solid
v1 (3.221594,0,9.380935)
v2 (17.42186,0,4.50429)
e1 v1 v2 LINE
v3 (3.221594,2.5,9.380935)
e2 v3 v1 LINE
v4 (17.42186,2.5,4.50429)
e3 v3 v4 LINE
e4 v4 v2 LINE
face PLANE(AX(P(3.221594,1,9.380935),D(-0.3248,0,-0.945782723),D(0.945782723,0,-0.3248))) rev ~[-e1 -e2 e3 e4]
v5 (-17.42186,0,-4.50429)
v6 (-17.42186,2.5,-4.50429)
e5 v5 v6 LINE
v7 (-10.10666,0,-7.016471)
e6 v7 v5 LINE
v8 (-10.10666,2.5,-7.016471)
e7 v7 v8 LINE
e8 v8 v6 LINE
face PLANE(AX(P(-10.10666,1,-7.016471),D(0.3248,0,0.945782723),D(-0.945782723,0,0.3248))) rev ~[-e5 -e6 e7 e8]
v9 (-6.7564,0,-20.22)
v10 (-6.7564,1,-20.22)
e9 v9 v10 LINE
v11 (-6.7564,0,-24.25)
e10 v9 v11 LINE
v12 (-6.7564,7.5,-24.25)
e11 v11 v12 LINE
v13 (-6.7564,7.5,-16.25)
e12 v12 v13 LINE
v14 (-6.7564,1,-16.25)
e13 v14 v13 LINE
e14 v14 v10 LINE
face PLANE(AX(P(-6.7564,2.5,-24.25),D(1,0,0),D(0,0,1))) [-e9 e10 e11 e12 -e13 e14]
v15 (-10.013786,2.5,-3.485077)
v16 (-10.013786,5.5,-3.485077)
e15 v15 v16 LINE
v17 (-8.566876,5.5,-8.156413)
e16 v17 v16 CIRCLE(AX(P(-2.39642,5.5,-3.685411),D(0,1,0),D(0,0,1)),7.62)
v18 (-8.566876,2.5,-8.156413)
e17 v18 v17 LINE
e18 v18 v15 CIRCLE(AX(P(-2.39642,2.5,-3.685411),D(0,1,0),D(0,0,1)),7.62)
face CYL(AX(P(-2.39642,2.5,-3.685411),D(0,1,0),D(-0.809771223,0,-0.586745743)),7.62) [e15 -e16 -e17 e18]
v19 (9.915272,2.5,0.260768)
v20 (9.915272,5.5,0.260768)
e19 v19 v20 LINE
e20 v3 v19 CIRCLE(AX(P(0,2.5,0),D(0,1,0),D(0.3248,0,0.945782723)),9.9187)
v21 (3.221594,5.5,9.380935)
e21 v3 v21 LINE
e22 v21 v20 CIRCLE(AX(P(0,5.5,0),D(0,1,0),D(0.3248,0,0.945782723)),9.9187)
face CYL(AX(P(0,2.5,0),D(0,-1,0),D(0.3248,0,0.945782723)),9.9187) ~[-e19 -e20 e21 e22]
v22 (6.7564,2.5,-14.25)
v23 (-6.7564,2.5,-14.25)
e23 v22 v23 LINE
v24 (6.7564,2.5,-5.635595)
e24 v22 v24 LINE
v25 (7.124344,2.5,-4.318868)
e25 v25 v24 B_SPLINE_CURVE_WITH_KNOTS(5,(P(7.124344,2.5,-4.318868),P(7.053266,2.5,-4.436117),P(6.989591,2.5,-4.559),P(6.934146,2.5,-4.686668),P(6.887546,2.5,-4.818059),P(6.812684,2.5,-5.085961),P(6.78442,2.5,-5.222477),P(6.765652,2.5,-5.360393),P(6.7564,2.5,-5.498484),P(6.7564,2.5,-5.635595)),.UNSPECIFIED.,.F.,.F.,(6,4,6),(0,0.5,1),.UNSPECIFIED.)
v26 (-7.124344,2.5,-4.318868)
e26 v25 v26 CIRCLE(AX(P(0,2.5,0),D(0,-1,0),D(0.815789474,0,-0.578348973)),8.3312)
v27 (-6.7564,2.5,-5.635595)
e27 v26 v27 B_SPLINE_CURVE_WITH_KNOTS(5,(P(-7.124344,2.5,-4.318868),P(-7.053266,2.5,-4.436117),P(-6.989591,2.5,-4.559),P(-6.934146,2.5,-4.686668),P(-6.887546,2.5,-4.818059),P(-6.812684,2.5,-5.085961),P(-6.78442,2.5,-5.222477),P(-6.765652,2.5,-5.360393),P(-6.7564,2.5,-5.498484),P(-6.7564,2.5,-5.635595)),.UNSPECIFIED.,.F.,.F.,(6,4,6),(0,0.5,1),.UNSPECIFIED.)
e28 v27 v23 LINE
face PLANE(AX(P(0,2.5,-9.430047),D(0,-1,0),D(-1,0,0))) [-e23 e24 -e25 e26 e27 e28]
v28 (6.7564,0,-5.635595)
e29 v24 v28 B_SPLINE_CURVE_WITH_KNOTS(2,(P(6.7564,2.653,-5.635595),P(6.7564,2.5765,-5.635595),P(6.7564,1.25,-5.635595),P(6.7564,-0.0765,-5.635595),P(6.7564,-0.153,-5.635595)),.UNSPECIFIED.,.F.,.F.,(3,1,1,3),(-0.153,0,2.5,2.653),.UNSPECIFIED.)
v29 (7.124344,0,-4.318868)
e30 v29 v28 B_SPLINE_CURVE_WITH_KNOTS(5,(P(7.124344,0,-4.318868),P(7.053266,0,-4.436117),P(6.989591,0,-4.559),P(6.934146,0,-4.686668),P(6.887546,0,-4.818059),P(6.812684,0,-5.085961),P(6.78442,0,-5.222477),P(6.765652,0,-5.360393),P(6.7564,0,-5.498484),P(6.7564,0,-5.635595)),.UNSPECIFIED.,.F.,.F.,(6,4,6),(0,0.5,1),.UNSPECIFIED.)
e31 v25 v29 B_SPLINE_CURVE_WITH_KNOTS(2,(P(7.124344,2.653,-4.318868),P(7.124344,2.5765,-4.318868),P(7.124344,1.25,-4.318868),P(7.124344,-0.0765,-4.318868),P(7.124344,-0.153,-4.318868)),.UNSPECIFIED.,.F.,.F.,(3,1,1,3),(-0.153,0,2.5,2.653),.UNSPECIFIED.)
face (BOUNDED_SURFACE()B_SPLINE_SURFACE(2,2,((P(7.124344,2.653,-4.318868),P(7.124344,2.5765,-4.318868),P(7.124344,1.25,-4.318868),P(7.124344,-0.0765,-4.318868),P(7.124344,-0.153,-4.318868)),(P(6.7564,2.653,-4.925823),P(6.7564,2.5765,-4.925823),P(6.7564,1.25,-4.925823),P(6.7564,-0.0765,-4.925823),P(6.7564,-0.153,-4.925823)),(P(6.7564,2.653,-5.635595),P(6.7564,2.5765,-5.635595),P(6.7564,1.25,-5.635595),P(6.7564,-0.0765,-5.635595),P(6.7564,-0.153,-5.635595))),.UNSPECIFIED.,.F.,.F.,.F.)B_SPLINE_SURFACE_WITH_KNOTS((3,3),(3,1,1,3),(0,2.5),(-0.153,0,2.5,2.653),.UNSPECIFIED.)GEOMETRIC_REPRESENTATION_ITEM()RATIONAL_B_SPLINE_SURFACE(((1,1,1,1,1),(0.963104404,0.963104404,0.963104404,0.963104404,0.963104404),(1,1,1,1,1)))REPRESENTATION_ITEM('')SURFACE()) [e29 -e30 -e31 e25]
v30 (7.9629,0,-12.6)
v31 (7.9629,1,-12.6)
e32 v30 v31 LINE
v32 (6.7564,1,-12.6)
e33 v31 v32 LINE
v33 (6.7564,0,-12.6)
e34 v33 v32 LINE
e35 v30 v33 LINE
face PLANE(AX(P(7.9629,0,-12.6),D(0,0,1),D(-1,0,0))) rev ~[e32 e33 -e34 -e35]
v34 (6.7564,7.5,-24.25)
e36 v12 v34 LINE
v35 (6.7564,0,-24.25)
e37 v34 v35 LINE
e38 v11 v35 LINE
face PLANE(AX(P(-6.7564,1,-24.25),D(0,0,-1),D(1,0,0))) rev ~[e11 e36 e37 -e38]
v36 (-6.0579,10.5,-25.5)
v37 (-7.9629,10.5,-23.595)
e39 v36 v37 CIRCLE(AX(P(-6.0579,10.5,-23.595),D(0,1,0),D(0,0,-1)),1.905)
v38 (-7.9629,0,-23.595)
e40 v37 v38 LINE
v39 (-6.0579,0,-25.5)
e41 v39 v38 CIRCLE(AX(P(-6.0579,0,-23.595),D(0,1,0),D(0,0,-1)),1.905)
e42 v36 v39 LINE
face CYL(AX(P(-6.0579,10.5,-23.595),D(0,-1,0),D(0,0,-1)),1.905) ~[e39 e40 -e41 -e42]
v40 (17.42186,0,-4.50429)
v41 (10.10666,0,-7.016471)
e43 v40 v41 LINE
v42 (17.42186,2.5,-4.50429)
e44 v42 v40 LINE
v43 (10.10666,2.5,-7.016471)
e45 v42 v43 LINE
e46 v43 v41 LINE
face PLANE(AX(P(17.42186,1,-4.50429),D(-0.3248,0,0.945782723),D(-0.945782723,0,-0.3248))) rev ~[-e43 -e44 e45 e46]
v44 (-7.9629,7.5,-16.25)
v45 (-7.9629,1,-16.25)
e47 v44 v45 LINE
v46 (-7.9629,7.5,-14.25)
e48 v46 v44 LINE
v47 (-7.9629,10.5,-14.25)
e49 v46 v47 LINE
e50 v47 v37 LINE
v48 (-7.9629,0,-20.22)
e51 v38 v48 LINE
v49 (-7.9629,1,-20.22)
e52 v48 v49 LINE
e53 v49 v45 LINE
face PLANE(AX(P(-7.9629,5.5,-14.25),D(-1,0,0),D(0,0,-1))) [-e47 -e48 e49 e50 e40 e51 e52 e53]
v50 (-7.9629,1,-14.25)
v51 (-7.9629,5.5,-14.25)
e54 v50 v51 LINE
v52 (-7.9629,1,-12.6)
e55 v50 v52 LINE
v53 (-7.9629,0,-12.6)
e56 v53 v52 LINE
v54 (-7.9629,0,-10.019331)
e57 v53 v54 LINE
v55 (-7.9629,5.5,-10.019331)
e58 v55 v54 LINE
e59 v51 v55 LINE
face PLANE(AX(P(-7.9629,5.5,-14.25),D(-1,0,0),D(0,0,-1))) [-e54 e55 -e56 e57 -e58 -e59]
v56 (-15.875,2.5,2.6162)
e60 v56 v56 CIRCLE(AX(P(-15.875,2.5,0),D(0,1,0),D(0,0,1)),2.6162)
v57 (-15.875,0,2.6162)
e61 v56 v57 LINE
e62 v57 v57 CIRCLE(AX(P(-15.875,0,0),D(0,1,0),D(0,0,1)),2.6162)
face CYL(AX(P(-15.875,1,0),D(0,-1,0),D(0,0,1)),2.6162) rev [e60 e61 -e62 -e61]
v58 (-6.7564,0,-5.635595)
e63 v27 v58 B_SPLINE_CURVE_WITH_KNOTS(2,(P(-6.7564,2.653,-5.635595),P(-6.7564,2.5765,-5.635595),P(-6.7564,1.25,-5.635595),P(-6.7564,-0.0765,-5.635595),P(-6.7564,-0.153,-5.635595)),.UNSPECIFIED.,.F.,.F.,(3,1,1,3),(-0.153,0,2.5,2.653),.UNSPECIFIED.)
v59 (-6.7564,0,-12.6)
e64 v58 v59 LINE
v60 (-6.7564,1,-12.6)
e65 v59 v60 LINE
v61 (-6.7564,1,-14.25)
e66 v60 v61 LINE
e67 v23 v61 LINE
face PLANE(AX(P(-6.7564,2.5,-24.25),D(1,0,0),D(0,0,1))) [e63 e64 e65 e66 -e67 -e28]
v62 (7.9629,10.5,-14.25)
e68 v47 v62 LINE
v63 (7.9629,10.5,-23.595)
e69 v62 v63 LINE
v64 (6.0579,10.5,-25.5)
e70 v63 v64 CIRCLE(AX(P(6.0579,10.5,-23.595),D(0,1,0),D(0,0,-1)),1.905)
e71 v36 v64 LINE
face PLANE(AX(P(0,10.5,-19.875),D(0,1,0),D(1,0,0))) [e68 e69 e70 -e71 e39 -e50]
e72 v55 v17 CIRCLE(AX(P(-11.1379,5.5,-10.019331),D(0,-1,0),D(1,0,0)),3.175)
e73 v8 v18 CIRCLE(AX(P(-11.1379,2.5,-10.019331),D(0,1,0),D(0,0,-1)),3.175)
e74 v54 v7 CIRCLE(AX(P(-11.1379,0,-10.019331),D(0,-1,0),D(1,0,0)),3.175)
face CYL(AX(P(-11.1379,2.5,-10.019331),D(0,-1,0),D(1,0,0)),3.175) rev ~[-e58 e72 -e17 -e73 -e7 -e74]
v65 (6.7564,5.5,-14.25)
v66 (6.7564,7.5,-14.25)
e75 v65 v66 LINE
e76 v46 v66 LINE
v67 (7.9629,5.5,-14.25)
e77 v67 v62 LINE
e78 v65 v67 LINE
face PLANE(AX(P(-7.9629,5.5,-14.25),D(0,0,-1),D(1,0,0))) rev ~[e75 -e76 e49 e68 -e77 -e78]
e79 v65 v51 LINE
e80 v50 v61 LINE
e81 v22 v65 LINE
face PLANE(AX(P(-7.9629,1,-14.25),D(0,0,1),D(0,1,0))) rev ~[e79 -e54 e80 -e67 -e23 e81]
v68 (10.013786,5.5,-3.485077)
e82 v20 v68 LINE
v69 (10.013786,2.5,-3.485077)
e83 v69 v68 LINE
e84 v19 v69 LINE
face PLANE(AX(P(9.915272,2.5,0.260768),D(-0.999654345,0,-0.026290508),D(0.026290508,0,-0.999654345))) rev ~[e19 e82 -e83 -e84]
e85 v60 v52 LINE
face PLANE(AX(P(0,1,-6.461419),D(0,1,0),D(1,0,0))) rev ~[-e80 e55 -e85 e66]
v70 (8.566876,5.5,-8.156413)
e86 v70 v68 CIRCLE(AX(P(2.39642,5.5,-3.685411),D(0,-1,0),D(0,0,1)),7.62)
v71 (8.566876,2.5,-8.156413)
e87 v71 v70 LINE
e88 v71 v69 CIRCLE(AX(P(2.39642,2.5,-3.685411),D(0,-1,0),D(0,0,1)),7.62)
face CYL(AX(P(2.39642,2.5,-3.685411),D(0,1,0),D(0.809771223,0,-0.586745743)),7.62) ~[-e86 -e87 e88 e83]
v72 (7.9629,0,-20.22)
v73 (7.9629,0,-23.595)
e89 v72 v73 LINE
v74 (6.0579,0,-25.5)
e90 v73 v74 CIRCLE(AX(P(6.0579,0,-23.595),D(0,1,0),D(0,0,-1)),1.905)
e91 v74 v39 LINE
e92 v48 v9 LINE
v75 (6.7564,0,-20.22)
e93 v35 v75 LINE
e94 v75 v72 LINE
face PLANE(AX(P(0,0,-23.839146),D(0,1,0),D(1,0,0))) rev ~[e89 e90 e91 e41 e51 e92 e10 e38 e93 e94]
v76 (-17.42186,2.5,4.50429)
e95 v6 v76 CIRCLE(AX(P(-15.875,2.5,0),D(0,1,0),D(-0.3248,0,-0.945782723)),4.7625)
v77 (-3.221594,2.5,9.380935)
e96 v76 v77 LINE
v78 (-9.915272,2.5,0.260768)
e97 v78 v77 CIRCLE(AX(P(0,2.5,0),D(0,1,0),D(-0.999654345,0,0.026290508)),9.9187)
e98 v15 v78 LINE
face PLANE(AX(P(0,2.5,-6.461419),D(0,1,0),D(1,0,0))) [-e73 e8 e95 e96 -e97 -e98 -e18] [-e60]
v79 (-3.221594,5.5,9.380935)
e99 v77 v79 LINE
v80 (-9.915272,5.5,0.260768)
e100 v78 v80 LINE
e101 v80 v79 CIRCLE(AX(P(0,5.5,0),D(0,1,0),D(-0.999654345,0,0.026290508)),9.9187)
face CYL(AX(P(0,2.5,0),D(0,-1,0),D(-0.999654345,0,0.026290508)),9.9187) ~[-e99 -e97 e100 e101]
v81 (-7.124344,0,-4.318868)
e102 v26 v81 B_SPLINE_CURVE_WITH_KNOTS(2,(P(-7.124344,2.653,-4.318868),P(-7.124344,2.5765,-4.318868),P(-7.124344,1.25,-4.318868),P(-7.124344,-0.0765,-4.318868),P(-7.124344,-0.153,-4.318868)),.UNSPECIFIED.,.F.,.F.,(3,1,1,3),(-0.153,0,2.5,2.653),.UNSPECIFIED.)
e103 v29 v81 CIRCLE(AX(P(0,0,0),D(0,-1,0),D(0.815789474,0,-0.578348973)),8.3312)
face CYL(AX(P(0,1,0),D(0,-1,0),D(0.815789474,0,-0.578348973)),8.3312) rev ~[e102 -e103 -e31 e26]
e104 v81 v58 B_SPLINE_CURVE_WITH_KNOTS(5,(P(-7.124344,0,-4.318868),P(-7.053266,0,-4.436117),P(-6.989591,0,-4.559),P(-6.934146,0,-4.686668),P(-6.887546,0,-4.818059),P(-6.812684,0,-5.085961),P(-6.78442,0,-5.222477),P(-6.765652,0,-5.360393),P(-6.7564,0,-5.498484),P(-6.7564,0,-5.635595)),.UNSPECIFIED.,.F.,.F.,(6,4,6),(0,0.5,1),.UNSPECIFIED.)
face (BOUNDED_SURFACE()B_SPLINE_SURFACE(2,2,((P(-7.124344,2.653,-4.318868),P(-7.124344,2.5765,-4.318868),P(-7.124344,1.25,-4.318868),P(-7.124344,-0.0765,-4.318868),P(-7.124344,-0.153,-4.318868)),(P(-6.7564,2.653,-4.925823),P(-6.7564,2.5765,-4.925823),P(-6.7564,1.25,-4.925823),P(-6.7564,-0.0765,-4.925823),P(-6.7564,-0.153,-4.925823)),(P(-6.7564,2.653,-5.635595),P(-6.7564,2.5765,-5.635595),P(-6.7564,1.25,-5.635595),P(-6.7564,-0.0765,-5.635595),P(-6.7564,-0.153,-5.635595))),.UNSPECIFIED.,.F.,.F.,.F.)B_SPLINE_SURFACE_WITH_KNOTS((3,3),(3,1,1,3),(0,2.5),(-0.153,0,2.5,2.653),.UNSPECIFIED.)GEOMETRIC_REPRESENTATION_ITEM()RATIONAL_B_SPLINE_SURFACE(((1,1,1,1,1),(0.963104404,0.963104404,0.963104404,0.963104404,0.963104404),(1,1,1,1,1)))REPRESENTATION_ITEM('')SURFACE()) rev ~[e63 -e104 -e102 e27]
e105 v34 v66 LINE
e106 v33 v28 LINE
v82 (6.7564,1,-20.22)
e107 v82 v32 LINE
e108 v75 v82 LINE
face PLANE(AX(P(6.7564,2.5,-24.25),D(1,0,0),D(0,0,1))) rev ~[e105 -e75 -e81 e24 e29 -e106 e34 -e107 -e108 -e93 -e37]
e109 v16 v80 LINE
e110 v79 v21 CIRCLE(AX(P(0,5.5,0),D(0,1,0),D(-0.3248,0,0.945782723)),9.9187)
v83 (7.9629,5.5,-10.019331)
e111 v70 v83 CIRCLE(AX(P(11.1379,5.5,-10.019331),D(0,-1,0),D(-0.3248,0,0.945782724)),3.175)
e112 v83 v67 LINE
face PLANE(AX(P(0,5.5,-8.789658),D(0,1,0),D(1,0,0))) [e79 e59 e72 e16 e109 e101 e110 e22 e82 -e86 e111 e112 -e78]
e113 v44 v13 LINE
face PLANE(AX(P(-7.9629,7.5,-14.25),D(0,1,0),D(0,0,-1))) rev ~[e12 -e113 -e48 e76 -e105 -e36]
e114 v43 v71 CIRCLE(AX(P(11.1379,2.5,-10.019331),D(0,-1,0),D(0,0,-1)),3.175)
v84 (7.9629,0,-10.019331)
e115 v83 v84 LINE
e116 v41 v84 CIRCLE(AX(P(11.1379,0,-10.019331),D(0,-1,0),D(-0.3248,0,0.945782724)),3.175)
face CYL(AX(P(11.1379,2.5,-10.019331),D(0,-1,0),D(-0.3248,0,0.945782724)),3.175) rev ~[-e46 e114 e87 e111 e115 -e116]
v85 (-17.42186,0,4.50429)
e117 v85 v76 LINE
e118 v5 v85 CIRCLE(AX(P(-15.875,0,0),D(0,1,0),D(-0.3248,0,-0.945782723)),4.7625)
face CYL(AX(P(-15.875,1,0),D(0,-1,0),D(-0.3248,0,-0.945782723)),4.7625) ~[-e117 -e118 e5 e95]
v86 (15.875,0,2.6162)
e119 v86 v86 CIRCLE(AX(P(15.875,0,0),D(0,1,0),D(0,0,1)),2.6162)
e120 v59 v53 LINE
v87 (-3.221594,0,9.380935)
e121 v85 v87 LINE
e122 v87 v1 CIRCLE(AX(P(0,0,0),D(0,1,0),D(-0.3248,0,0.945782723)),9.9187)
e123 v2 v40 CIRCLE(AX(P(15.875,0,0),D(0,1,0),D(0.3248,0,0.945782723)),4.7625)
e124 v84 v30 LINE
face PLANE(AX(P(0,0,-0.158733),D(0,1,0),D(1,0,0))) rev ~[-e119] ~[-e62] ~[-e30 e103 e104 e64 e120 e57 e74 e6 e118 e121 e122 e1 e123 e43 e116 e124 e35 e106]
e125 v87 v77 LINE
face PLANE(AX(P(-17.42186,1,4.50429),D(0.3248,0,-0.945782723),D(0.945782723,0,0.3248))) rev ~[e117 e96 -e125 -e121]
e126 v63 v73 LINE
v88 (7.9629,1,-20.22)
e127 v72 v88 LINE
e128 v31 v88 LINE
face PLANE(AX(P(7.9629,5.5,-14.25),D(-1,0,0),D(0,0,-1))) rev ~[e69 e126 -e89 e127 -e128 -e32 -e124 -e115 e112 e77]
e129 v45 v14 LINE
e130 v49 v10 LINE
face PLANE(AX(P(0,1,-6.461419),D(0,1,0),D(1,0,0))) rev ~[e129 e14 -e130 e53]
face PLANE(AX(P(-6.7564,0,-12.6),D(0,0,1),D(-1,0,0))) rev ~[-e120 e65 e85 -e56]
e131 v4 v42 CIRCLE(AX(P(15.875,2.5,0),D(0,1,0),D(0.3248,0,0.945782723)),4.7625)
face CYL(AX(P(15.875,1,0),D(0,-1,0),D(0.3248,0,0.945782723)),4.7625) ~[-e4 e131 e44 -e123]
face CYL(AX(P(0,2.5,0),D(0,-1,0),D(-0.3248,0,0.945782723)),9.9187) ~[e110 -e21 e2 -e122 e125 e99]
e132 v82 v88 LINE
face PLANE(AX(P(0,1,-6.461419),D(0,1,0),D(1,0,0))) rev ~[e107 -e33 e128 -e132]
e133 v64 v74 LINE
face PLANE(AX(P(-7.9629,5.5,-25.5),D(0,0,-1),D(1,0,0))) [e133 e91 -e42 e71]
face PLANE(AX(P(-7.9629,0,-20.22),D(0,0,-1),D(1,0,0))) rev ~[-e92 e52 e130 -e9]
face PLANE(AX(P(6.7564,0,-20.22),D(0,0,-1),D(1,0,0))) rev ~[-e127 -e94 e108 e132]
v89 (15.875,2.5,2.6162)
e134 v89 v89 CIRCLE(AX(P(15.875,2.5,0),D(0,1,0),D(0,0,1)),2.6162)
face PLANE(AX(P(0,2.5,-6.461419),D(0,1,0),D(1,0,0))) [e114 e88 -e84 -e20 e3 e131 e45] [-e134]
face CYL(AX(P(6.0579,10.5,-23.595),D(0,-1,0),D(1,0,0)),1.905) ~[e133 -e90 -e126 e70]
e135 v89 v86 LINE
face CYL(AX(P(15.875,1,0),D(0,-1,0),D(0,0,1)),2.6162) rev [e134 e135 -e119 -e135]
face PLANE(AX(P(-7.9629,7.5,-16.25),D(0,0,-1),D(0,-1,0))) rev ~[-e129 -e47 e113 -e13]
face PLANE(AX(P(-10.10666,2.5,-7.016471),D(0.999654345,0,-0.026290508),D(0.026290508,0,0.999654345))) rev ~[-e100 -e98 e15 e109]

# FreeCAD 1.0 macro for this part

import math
import FreeCAD as App
import Part
import Sketcher

V = App.Vector
Q = App.Units.Quantity


def edges_at(feature, points):
    """Names of the edges that pass closest to the given points."""
    edges = feature.Shape.Edges
    near = lambda p: min(range(len(edges)), key=lambda i: edges[i].distToShape(Part.Vertex(*p))[0])
    return sorted({f"Edge{near(p) + 1}" for p in points})

doc = App.newDocument("Part")
params = doc.addObject("Spreadsheet::Sheet", "Params")
for row, (alias, value) in enumerate([
    ("sketch1_width", "0.627 in"),
    ("sketch1_width2", "0.532 in"),
    ("pad1_length", "1 mm"),
    ("sketch2_radius", "0.09 in"),
    ("sketch2_diameter", "0.206 in"),
    ("sketch2_radius2", "0.328 in"),
    ("sketch2_radius3", "0.125 in"),
    ("sketch2_radius4", "0.1875 in"),
    ("pad2_length", "1 mm"),
    ("sketch3_radius", "0.09 in"),
    ("sketch3_diameter", "0.206 in"),
    ("sketch3_radius2", "0.125 in"),
    ("sketch3_radius3", "0.1875 in"),
    ("sketch3_radius4", "0.328 in"),
    ("pad3_length", "1.5 mm"),
    ("sketch4_radius", "0.125 in"),
    ("sketch4_width", "0.627 in"),
    ("pad4_length", "3 mm"),
    ("sketch5_width", "0.627 in"),
    ("pad5_length", "5 mm"),
    ("sketch6_width", "0.532 in"),
    ("pocket1_length", "5 mm"),
    ("pocket2_length", "5 mm"),
    ("fillet_radius", "0.1 in"),
    ("fillet2_radius", "0.1 in"),
    ("fillet3_radius", "0.3 in"),
    ("fillet4_radius", "0.075 in"),
], start=1):
    params.set(f"A{row}", alias)
    params.set(f"B{row}", "=" + value)
    params.setAlias(f"B{row}", alias)

body = doc.addObject("PartDesign::Body", "Body")

sketch1 = body.newObject("Sketcher::SketchObject", "Sketch")
sketch1.AttachmentSupport = (doc.getObject("XZ_Plane"), [""])
sketch1.MapMode = "FlatFace"
sketch1.addGeometry(Part.LineSegment(V(6.7564, -24.25, 0), V(6.7564, -20.22, 0)), False)
sketch1.addGeometry(Part.LineSegment(V(6.7564, -20.22, 0), V(7.9629, -20.22, 0)), False)
sketch1.addGeometry(Part.LineSegment(V(7.9629, -20.22, 0), V(7.9629, -25.5, 0)), False)
sketch1.addGeometry(Part.LineSegment(V(7.9629, -25.5, 0), V(-7.9629, -25.5, 0)), False)
sketch1.addGeometry(Part.LineSegment(V(-7.9629, -25.5, 0), V(-7.9629, -20.22, 0)), False)
sketch1.addGeometry(Part.LineSegment(V(-7.9629, -20.22, 0), V(-6.7564, -20.22, 0)), False)
sketch1.addGeometry(Part.LineSegment(V(-6.7564, -20.22, 0), V(-6.7564, -24.25, 0)), False)
sketch1.addGeometry(Part.LineSegment(V(-6.7564, -24.25, 0), V(6.7564, -24.25, 0)), False)
sketch1.addConstraint(Sketcher.Constraint("Coincident", 0, 2, 1, 1))
sketch1.addConstraint(Sketcher.Constraint("Coincident", 1, 2, 2, 1))
sketch1.addConstraint(Sketcher.Constraint("Coincident", 2, 2, 3, 1))
sketch1.addConstraint(Sketcher.Constraint("Coincident", 3, 2, 4, 1))
sketch1.addConstraint(Sketcher.Constraint("Coincident", 4, 2, 5, 1))
sketch1.addConstraint(Sketcher.Constraint("Coincident", 5, 2, 6, 1))
sketch1.addConstraint(Sketcher.Constraint("Coincident", 6, 2, 7, 1))
sketch1.addConstraint(Sketcher.Constraint("Coincident", 7, 2, 0, 1))
sketch1.addConstraint(Sketcher.Constraint("Vertical", 0))
sketch1.addConstraint(Sketcher.Constraint("Horizontal", 1))
sketch1.addConstraint(Sketcher.Constraint("Vertical", 2))
sketch1.addConstraint(Sketcher.Constraint("Horizontal", 3))
sketch1.addConstraint(Sketcher.Constraint("Vertical", 4))
sketch1.addConstraint(Sketcher.Constraint("Horizontal", 5))
sketch1.addConstraint(Sketcher.Constraint("Vertical", 6))
sketch1.addConstraint(Sketcher.Constraint("Horizontal", 7))
sketch1.addConstraint(Sketcher.Constraint("Symmetric", 1, 2, 4, 2, -2))
sketch1.addConstraint(Sketcher.Constraint("Equal", 1, 5))
sketch1.addConstraint(Sketcher.Constraint("DistanceX", 3, 2, 3, 1, Q("0.627 in")))
sketch1.addConstraint(Sketcher.Constraint("DistanceX", 7, 1, 7, 2, Q("0.532 in")))
sketch1.addConstraint(Sketcher.Constraint("DistanceY", 0, 1, 0, 2, 4.03))
sketch1.addConstraint(Sketcher.Constraint("DistanceY", 2, 2, 2, 1, 5.28))
sketch1.addConstraint(Sketcher.Constraint("DistanceY", 0, 2, -1, 1, 20.22))
sketch1.setExpression("Constraints[18]", "Params.sketch1_width")
sketch1.setExpression("Constraints[19]", "Params.sketch1_width2")
pad1 = body.newObject("PartDesign::Pad", "Pad")
pad1.Profile = sketch1
pad1.setExpression("Length", "Params.pad1_length")
pad1.Reversed = True
body2 = doc.addObject("PartDesign::Body", "Body001")

sketch2 = body2.newObject("Sketcher::SketchObject", "Sketch001")
sketch2.AttachmentSupport = (doc.getObject("XZ_Plane001"), [""])
sketch2.MapMode = "FlatFace"
sketch2.addGeometry(Part.LineSegment(V(6.7564, -12.6, 0), V(6.7564, -4.876813, 0)), False)
sketch2.addGeometry(Part.ArcOfCircle(Part.Circle(V(8.6614, -6.140447, 0), V(0, 0, 1), 2.286), math.radians(144.665499), math.radians(146.442691)), False)
sketch2.addGeometry(Part.ArcOfCircle(Part.Circle(V(0, 0, 0), V(0, 0, 1), 8.3312), math.radians(-35.334502), math.radians(215.334502)), False)
sketch2.addGeometry(Part.ArcOfCircle(Part.Circle(V(-8.6614, -6.140447, 0), V(0, 0, 1), 2.286), math.radians(33.557309), math.radians(35.334501)), False)
sketch2.addGeometry(Part.LineSegment(V(-6.7564, -4.876813, 0), V(-6.7564, -12.6, 0)), False)
sketch2.addGeometry(Part.LineSegment(V(-6.7564, -12.6, 0), V(-7.9629, -12.6, 0)), False)
sketch2.addGeometry(Part.LineSegment(V(-7.9629, -12.6, 0), V(-7.9629, -10.019331, 0)), False)
sketch2.addGeometry(Part.ArcOfCircle(Part.Circle(V(-11.1379, -10.019331, 0), V(0, 0, 1), 3.175), math.radians(0), math.radians(71.046542)), False)
sketch2.addGeometry(Part.LineSegment(V(-10.10666, -7.016471, 0), V(-17.42186, -4.50429, 0)), False)
sketch2.addGeometry(Part.ArcOfCircle(Part.Circle(V(-15.875, 0, 0), V(0, 0, 1), 4.7625), math.radians(108.953458), math.radians(251.046542)), False)
sketch2.addGeometry(Part.LineSegment(V(-17.42186, 4.50429, 0), V(-3.221594, 9.380935, 0)), False)
sketch2.addGeometry(Part.ArcOfCircle(Part.Circle(V(0, 0, 0), V(0, 0, 1), 9.9187), math.radians(71.046541), math.radians(108.953459)), False)
sketch2.addGeometry(Part.LineSegment(V(3.221594, 9.380935, 0), V(17.42186, 4.50429, 0)), False)
sketch2.addGeometry(Part.ArcOfCircle(Part.Circle(V(15.875, 0, 0), V(0, 0, 1), 4.7625), math.radians(-71.046542), math.radians(71.046542)), False)
sketch2.addGeometry(Part.LineSegment(V(17.42186, -4.50429, 0), V(10.10666, -7.016471, 0)), False)
sketch2.addGeometry(Part.ArcOfCircle(Part.Circle(V(11.1379, -10.019331, 0), V(0, 0, 1), 3.175), math.radians(108.953458), math.radians(180)), False)
sketch2.addGeometry(Part.LineSegment(V(7.9629, -10.019331, 0), V(7.9629, -12.6, 0)), False)
sketch2.addGeometry(Part.LineSegment(V(7.9629, -12.6, 0), V(6.7564, -12.6, 0)), False)
sketch2.addGeometry(Part.Circle(V(-15.875, 0, 0), V(0, 0, 1), 2.6162), False)
sketch2.addGeometry(Part.Circle(V(15.875, 0, 0), V(0, 0, 1), 2.6162), False)
sketch2.addConstraint(Sketcher.Constraint("Coincident", 0, 2, 1, 2))
sketch2.addConstraint(Sketcher.Constraint("Tangent", 1, 1, 2, 1))
sketch2.addConstraint(Sketcher.Constraint("Tangent", 2, 2, 3, 2))
sketch2.addConstraint(Sketcher.Constraint("Coincident", 3, 1, 4, 1))
sketch2.addConstraint(Sketcher.Constraint("Coincident", 4, 2, 5, 1))
sketch2.addConstraint(Sketcher.Constraint("Coincident", 5, 2, 6, 1))
sketch2.addConstraint(Sketcher.Constraint("Tangent", 6, 2, 7, 1))
sketch2.addConstraint(Sketcher.Constraint("Tangent", 7, 2, 8, 1))
sketch2.addConstraint(Sketcher.Constraint("Tangent", 8, 2, 9, 2))
sketch2.addConstraint(Sketcher.Constraint("Tangent", 9, 1, 10, 1))
sketch2.addConstraint(Sketcher.Constraint("Tangent", 10, 2, 11, 2))
sketch2.addConstraint(Sketcher.Constraint("Tangent", 11, 1, 12, 1))
sketch2.addConstraint(Sketcher.Constraint("Tangent", 12, 2, 13, 2))
sketch2.addConstraint(Sketcher.Constraint("Tangent", 13, 1, 14, 1))
sketch2.addConstraint(Sketcher.Constraint("Tangent", 14, 2, 15, 1))
sketch2.addConstraint(Sketcher.Constraint("Tangent", 15, 2, 16, 1))
sketch2.addConstraint(Sketcher.Constraint("Coincident", 16, 2, 17, 1))
sketch2.addConstraint(Sketcher.Constraint("Coincident", 17, 2, 0, 1))
sketch2.addConstraint(Sketcher.Constraint("Vertical", 0))
sketch2.addConstraint(Sketcher.Constraint("Vertical", 4))
sketch2.addConstraint(Sketcher.Constraint("Horizontal", 5))
sketch2.addConstraint(Sketcher.Constraint("Vertical", 6))
sketch2.addConstraint(Sketcher.Constraint("Vertical", 16))
sketch2.addConstraint(Sketcher.Constraint("Horizontal", 17))
sketch2.addConstraint(Sketcher.Constraint("Coincident", 2, 3, -1, 1))
sketch2.addConstraint(Sketcher.Constraint("Coincident", 11, 3, -1, 1))
sketch2.addConstraint(Sketcher.Constraint("Coincident", 18, 3, 9, 3))
sketch2.addConstraint(Sketcher.Constraint("Coincident", 19, 3, 13, 3))
sketch2.addConstraint(Sketcher.Constraint("Equal", 1, 3))
sketch2.addConstraint(Sketcher.Constraint("Equal", 9, 13))
sketch2.addConstraint(Sketcher.Constraint("Equal", 7, 15))
sketch2.addConstraint(Sketcher.Constraint("Equal", 18, 19))
sketch2.addConstraint(Sketcher.Constraint("Symmetric", 9, 3, 13, 3, -1, 1))
sketch2.addConstraint(Sketcher.Constraint("Symmetric", 7, 3, 15, 3, -2))
sketch2.addConstraint(Sketcher.Constraint("Symmetric", 0, 2, 3, 1, -2))
sketch2.addConstraint(Sketcher.Constraint("Symmetric", 8, 2, 9, 1, -1))
sketch2.addConstraint(Sketcher.Constraint("Horizontal", 5, 2, 16, 2))
sketch2.addConstraint(Sketcher.Constraint("Radius", 1, Q("0.09 in")))
sketch2.addConstraint(Sketcher.Constraint("Diameter", 18, Q("0.206 in")))
sketch2.addConstraint(Sketcher.Constraint("Radius", 2, Q("0.328 in")))
sketch2.addConstraint(Sketcher.Constraint("Radius", 7, Q("0.125 in")))
sketch2.addConstraint(Sketcher.Constraint("Radius", 9, Q("0.1875 in")))
sketch2.addConstraint(Sketcher.Constraint("Radius", 11, Q("0.3905 in")))
sketch2.addConstraint(Sketcher.Constraint("DistanceX", 5, 2, 5, 1, Q("0.0475 in")))
sketch2.addConstraint(Sketcher.Constraint("DistanceX", -1, 1, 1, 3, Q("0.341 in")))
sketch2.addConstraint(Sketcher.Constraint("DistanceX", 9, 3, -1, 1, Q("0.625 in")))
sketch2.addConstraint(Sketcher.Constraint("DistanceX", -1, 1, 0, 2, Q("0.266 in")))
sketch2.addConstraint(Sketcher.Constraint("DistanceY", 6, 1, 6, 2, 2.580669))
sketch2.setExpression("Constraints[37]", "Params.sketch2_radius")
sketch2.setExpression("Constraints[38]", "Params.sketch2_diameter")
sketch2.setExpression("Constraints[39]", "Params.sketch2_radius2")
sketch2.setExpression("Constraints[40]", "Params.sketch2_radius3")
sketch2.setExpression("Constraints[41]", "Params.sketch2_radius4")
pad2 = body2.newObject("PartDesign::Pad", "Pad001")
pad2.Profile = sketch2
pad2.setExpression("Length", "Params.pad2_length")
pad2.Reversed = True
body.AllowCompound = True
doc.recompute()

boolean = body.newObject("PartDesign::Boolean", "Boolean")
boolean.Type = "Fuse"
boolean.addObjects([body2])

sketch3 = body.newObject("Sketcher::SketchObject", "Sketch002")
sketch3.AttachmentSupport = (doc.getObject("XZ_Plane"), [""])
sketch3.MapMode = "FlatFace"
sketch3.AttachmentOffset = App.Placement(V(0, 0, -1), App.Rotation())
sketch3.addGeometry(Part.LineSegment(V(7.9629, -25.5, 0), V(-7.9629, -25.5, 0)), False)
sketch3.addGeometry(Part.LineSegment(V(-7.9629, -25.5, 0), V(-7.9629, -10.019331, 0)), False)
sketch3.addGeometry(Part.ArcOfCircle(Part.Circle(V(-11.1379, -10.019331, 0), V(0, 0, 1), 3.175), math.radians(0), math.radians(71.046542)), False)
sketch3.addGeometry(Part.LineSegment(V(-10.10666, -7.016471, 0), V(-17.42186, -4.50429, 0)), False)
sketch3.addGeometry(Part.ArcOfCircle(Part.Circle(V(-15.875, 0, 0), V(0, 0, 1), 4.7625), math.radians(108.953458), math.radians(251.046542)), False)
sketch3.addGeometry(Part.LineSegment(V(-17.42186, 4.50429, 0), V(-3.221594, 9.380935, 0)), False)
sketch3.addGeometry(Part.ArcOfCircle(Part.Circle(V(0, 0, 0), V(0, 0, 1), 9.9187), math.radians(71.046541), math.radians(108.953459)), False)
sketch3.addGeometry(Part.LineSegment(V(3.221594, 9.380935, 0), V(17.42186, 4.50429, 0)), False)
sketch3.addGeometry(Part.ArcOfCircle(Part.Circle(V(15.875, 0, 0), V(0, 0, 1), 4.7625), math.radians(-71.046542), math.radians(71.046542)), False)
sketch3.addGeometry(Part.LineSegment(V(17.42186, -4.50429, 0), V(10.10666, -7.016471, 0)), False)
sketch3.addGeometry(Part.ArcOfCircle(Part.Circle(V(11.1379, -10.019331, 0), V(0, 0, 1), 3.175), math.radians(108.953458), math.radians(180)), False)
sketch3.addGeometry(Part.LineSegment(V(7.9629, -10.019331, 0), V(7.9629, -25.5, 0)), False)
sketch3.addGeometry(Part.Circle(V(-15.875, 0, 0), V(0, 0, 1), 2.6162), False)
sketch3.addGeometry(Part.Circle(V(15.875, 0, 0), V(0, 0, 1), 2.6162), False)
sketch3.addGeometry(Part.LineSegment(V(-6.7564, -4.876813, 0), V(-6.7564, -24.25, 0)), False)
sketch3.addGeometry(Part.LineSegment(V(-6.7564, -24.25, 0), V(6.7564, -24.25, 0)), False)
sketch3.addGeometry(Part.LineSegment(V(6.7564, -24.25, 0), V(6.7564, -4.876813, 0)), False)
sketch3.addGeometry(Part.ArcOfCircle(Part.Circle(V(8.6614, -6.140447, 0), V(0, 0, 1), 2.286), math.radians(144.665499), math.radians(146.442691)), False)
sketch3.addGeometry(Part.ArcOfCircle(Part.Circle(V(0, 0, 0), V(0, 0, 1), 8.3312), math.radians(-35.334502), math.radians(215.334502)), False)
sketch3.addGeometry(Part.ArcOfCircle(Part.Circle(V(-8.6614, -6.140447, 0), V(0, 0, 1), 2.286), math.radians(33.557309), math.radians(35.334501)), False)
sketch3.addConstraint(Sketcher.Constraint("Coincident", 0, 2, 1, 1))
sketch3.addConstraint(Sketcher.Constraint("Tangent", 1, 2, 2, 1))
sketch3.addConstraint(Sketcher.Constraint("Tangent", 2, 2, 3, 1))
sketch3.addConstraint(Sketcher.Constraint("Tangent", 3, 2, 4, 2))
sketch3.addConstraint(Sketcher.Constraint("Tangent", 4, 1, 5, 1))
sketch3.addConstraint(Sketcher.Constraint("Tangent", 5, 2, 6, 2))
sketch3.addConstraint(Sketcher.Constraint("Tangent", 6, 1, 7, 1))
sketch3.addConstraint(Sketcher.Constraint("Tangent", 7, 2, 8, 2))
sketch3.addConstraint(Sketcher.Constraint("Tangent", 8, 1, 9, 1))
sketch3.addConstraint(Sketcher.Constraint("Tangent", 9, 2, 10, 1))
sketch3.addConstraint(Sketcher.Constraint("Tangent", 10, 2, 11, 1))
sketch3.addConstraint(Sketcher.Constraint("Coincident", 11, 2, 0, 1))
sketch3.addConstraint(Sketcher.Constraint("Coincident", 14, 2, 15, 1))
sketch3.addConstraint(Sketcher.Constraint("Coincident", 15, 2, 16, 1))
sketch3.addConstraint(Sketcher.Constraint("Coincident", 16, 2, 17, 2))
sketch3.addConstraint(Sketcher.Constraint("Tangent", 17, 1, 18, 1))
sketch3.addConstraint(Sketcher.Constraint("Tangent", 18, 2, 19, 2))
sketch3.addConstraint(Sketcher.Constraint("Coincident", 19, 1, 14, 1))
sketch3.addConstraint(Sketcher.Constraint("Horizontal", 0))
sketch3.addConstraint(Sketcher.Constraint("Vertical", 1))
sketch3.addConstraint(Sketcher.Constraint("Vertical", 11))
sketch3.addConstraint(Sketcher.Constraint("Vertical", 14))
sketch3.addConstraint(Sketcher.Constraint("Horizontal", 15))
sketch3.addConstraint(Sketcher.Constraint("Vertical", 16))
sketch3.addConstraint(Sketcher.Constraint("Coincident", 6, 3, -1, 1))
sketch3.addConstraint(Sketcher.Constraint("Coincident", 18, 3, -1, 1))
sketch3.addConstraint(Sketcher.Constraint("Coincident", 12, 3, 4, 3))
sketch3.addConstraint(Sketcher.Constraint("Coincident", 13, 3, 8, 3))
sketch3.addConstraint(Sketcher.Constraint("Equal", 4, 8))
sketch3.addConstraint(Sketcher.Constraint("Equal", 2, 10))
sketch3.addConstraint(Sketcher.Constraint("Equal", 12, 13))
sketch3.addConstraint(Sketcher.Constraint("Equal", 17, 19))
sketch3.addConstraint(Sketcher.Constraint("Symmetric", 4, 3, 8, 3, -1, 1))
sketch3.addConstraint(Sketcher.Constraint("Symmetric", 2, 3, 10, 3, -2))
sketch3.addConstraint(Sketcher.Constraint("Symmetric", 16, 2, 19, 1, -2))
sketch3.addConstraint(Sketcher.Constraint("Symmetric", 3, 2, 4, 1, -1))
sketch3.addConstraint(Sketcher.Constraint("Radius", 17, Q("0.09 in")))
sketch3.addConstraint(Sketcher.Constraint("Diameter", 12, Q("0.206 in")))
sketch3.addConstraint(Sketcher.Constraint("Radius", 2, Q("0.125 in")))
sketch3.addConstraint(Sketcher.Constraint("Radius", 4, Q("0.1875 in")))
sketch3.addConstraint(Sketcher.Constraint("Radius", 18, Q("0.328 in")))
sketch3.addConstraint(Sketcher.Constraint("Radius", 6, Q("0.3905 in")))
sketch3.addConstraint(Sketcher.Constraint("DistanceX", 0, 2, 0, 1, Q("0.627 in")))
sketch3.addConstraint(Sketcher.Constraint("DistanceX", 15, 1, 15, 2, Q("0.532 in")))
sketch3.addConstraint(Sketcher.Constraint("DistanceX", 4, 3, 8, 3, Q("1.25 in")))
sketch3.addConstraint(Sketcher.Constraint("DistanceX", -1, 1, 17, 3, Q("0.341 in")))
sketch3.addConstraint(Sketcher.Constraint("DistanceY", 1, 1, 1, 2, 15.480669))
sketch3.addConstraint(Sketcher.Constraint("DistanceY", 14, 2, -1, 1, 24.25))
sketch3.setExpression("Constraints[36]", "Params.sketch3_radius")
sketch3.setExpression("Constraints[37]", "Params.sketch3_diameter")
sketch3.setExpression("Constraints[38]", "Params.sketch3_radius2")
sketch3.setExpression("Constraints[39]", "Params.sketch3_radius3")
sketch3.setExpression("Constraints[40]", "Params.sketch3_radius4")
pad3 = body.newObject("PartDesign::Pad", "Pad002")
pad3.Profile = sketch3
pad3.setExpression("Length", "Params.pad3_length")
pad3.Reversed = True

sketch4 = body.newObject("Sketcher::SketchObject", "Sketch003")
sketch4.AttachmentSupport = (doc.getObject("XZ_Plane"), [""])
sketch4.MapMode = "FlatFace"
sketch4.AttachmentOffset = App.Placement(V(0, 0, -2.5), App.Rotation())
sketch4.addGeometry(Part.LineSegment(V(-10.10666, -7.016471, 0), V(-9.915272, 0.260768, 0)), False)
sketch4.addGeometry(Part.ArcOfCircle(Part.Circle(V(0, 0, 0), V(0, 0, 1), 9.9187), math.radians(108.953458), math.radians(178.493491)), False)
sketch4.addGeometry(Part.ArcOfCircle(Part.Circle(V(0, 0, 0), V(0, 0, 1), 9.9187), math.radians(71.046541), math.radians(108.953459)), False)
sketch4.addGeometry(Part.ArcOfCircle(Part.Circle(V(0, 0, 0), V(0, 0, 1), 9.9187), math.radians(1.506509), math.radians(71.046542)), False)
sketch4.addGeometry(Part.LineSegment(V(9.915272, 0.260768, 0), V(10.10666, -7.016471, 0)), False)
sketch4.addGeometry(Part.ArcOfCircle(Part.Circle(V(11.1379, -10.019331, 0), V(0, 0, 1), 3.175), math.radians(108.953458), math.radians(180)), False)
sketch4.addGeometry(Part.LineSegment(V(7.9629, -10.019331, 0), V(7.9629, -25.5, 0)), False)
sketch4.addGeometry(Part.LineSegment(V(7.9629, -25.5, 0), V(-7.9629, -25.5, 0)), False)
sketch4.addGeometry(Part.LineSegment(V(-7.9629, -25.5, 0), V(-7.9629, -10.019331, 0)), False)
sketch4.addGeometry(Part.ArcOfCircle(Part.Circle(V(-11.1379, -10.019331, 0), V(0, 0, 1), 3.175), math.radians(0), math.radians(71.046542)), False)
sketch4.addConstraint(Sketcher.Constraint("Tangent", 0, 2, 1, 2))
sketch4.addConstraint(Sketcher.Constraint("Tangent", 1, 1, 2, 2))
sketch4.addConstraint(Sketcher.Constraint("Tangent", 2, 1, 3, 2))
sketch4.addConstraint(Sketcher.Constraint("Tangent", 3, 1, 4, 1))
sketch4.addConstraint(Sketcher.Constraint("Coincident", 4, 2, 5, 1))
sketch4.addConstraint(Sketcher.Constraint("Tangent", 5, 2, 6, 1))
sketch4.addConstraint(Sketcher.Constraint("Coincident", 6, 2, 7, 1))
sketch4.addConstraint(Sketcher.Constraint("Coincident", 7, 2, 8, 1))
sketch4.addConstraint(Sketcher.Constraint("Tangent", 8, 2, 9, 1))
sketch4.addConstraint(Sketcher.Constraint("Coincident", 9, 2, 0, 1))
sketch4.addConstraint(Sketcher.Constraint("Vertical", 6))
sketch4.addConstraint(Sketcher.Constraint("Horizontal", 7))
sketch4.addConstraint(Sketcher.Constraint("Vertical", 8))
sketch4.addConstraint(Sketcher.Constraint("Coincident", 1, 3, -1, 1))
sketch4.addConstraint(Sketcher.Constraint("Coincident", 3, 3, -1, 1))
sketch4.addConstraint(Sketcher.Constraint("Equal", 5, 9))
sketch4.addConstraint(Sketcher.Constraint("Symmetric", 5, 3, 9, 3, -2))
sketch4.addConstraint(Sketcher.Constraint("Horizontal", 1, 1, 2, 1))
sketch4.addConstraint(Sketcher.Constraint("Horizontal", 0, 2, 3, 1))
sketch4.addConstraint(Sketcher.Constraint("Radius", 5, Q("0.125 in")))
sketch4.addConstraint(Sketcher.Constraint("Radius", 1, Q("0.3905 in")))
sketch4.addConstraint(Sketcher.Constraint("DistanceX", 7, 2, 7, 1, Q("0.627 in")))
sketch4.addConstraint(Sketcher.Constraint("DistanceX", -1, 1, 4, 2, Q("0.3979 in")))
sketch4.addConstraint(Sketcher.Constraint("DistanceY", 6, 2, 6, 1, 15.480669))
sketch4.addConstraint(Sketcher.Constraint("DistanceY", 6, 2, -1, 1, 25.5))
sketch4.addConstraint(Sketcher.Constraint("DistanceX", 1, 1, -1, 1, 3.221594))
sketch4.setExpression("Constraints[19]", "Params.sketch4_radius")
sketch4.setExpression("Constraints[21]", "Params.sketch4_width")
pad4 = body.newObject("PartDesign::Pad", "Pad003")
pad4.Profile = sketch4
pad4.setExpression("Length", "Params.pad4_length")
pad4.Reversed = True

sketch5 = body.newObject("Sketcher::SketchObject", "Sketch004")
sketch5.AttachmentSupport = (doc.getObject("XZ_Plane"), [""])
sketch5.MapMode = "FlatFace"
sketch5.AttachmentOffset = App.Placement(V(0, 0, -5.5), App.Rotation())
sketch5.addGeometry(Part.LineSegment(V(-7.9629, -25.5, 0), V(-7.9629, -14.25, 0)), False)
sketch5.addGeometry(Part.LineSegment(V(-7.9629, -14.25, 0), V(7.9629, -14.25, 0)), False)
sketch5.addGeometry(Part.LineSegment(V(7.9629, -14.25, 0), V(7.9629, -25.5, 0)), False)
sketch5.addGeometry(Part.LineSegment(V(7.9629, -25.5, 0), V(-7.9629, -25.5, 0)), False)
sketch5.addConstraint(Sketcher.Constraint("Coincident", 0, 2, 1, 1))
sketch5.addConstraint(Sketcher.Constraint("Coincident", 1, 2, 2, 1))
sketch5.addConstraint(Sketcher.Constraint("Coincident", 2, 2, 3, 1))
sketch5.addConstraint(Sketcher.Constraint("Coincident", 3, 2, 0, 1))
sketch5.addConstraint(Sketcher.Constraint("Vertical", 0))
sketch5.addConstraint(Sketcher.Constraint("Horizontal", 1))
sketch5.addConstraint(Sketcher.Constraint("Vertical", 2))
sketch5.addConstraint(Sketcher.Constraint("Horizontal", 3))
sketch5.addConstraint(Sketcher.Constraint("DistanceX", 1, 1, 1, 2, Q("0.627 in")))
sketch5.addConstraint(Sketcher.Constraint("DistanceY", 0, 1, 0, 2, 11.25))
sketch5.addConstraint(Sketcher.Constraint("DistanceX", 0, 2, -1, 1, Q("0.3135 in")))
sketch5.addConstraint(Sketcher.Constraint("DistanceY", 0, 2, -1, 1, 14.25))
sketch5.setExpression("Constraints[8]", "Params.sketch5_width")
pad5 = body.newObject("PartDesign::Pad", "Pad004")
pad5.Profile = sketch5
pad5.setExpression("Length", "Params.pad5_length")
pad5.Reversed = True

sketch6 = body.newObject("Sketcher::SketchObject", "Sketch005")
sketch6.AttachmentSupport = (doc.getObject("XZ_Plane"), [""])
sketch6.MapMode = "FlatFace"
sketch6.AttachmentOffset = App.Placement(V(0, 0, -2.5), App.Rotation())
sketch6.addGeometry(Part.LineSegment(V(-6.7564, -14.25, 0), V(-6.7564, -24.25, 0)), False)
sketch6.addGeometry(Part.LineSegment(V(-6.7564, -24.25, 0), V(6.7564, -24.25, 0)), False)
sketch6.addGeometry(Part.LineSegment(V(6.7564, -24.25, 0), V(6.7564, -14.25, 0)), False)
sketch6.addGeometry(Part.LineSegment(V(6.7564, -14.25, 0), V(-6.7564, -14.25, 0)), False)
sketch6.addConstraint(Sketcher.Constraint("Coincident", 0, 2, 1, 1))
sketch6.addConstraint(Sketcher.Constraint("Coincident", 1, 2, 2, 1))
sketch6.addConstraint(Sketcher.Constraint("Coincident", 2, 2, 3, 1))
sketch6.addConstraint(Sketcher.Constraint("Coincident", 3, 2, 0, 1))
sketch6.addConstraint(Sketcher.Constraint("Vertical", 0))
sketch6.addConstraint(Sketcher.Constraint("Horizontal", 1))
sketch6.addConstraint(Sketcher.Constraint("Vertical", 2))
sketch6.addConstraint(Sketcher.Constraint("Horizontal", 3))
sketch6.addConstraint(Sketcher.Constraint("DistanceX", 1, 1, 1, 2, Q("0.532 in")))
sketch6.addConstraint(Sketcher.Constraint("DistanceX", 0, 2, -1, 1, Q("0.266 in")))
sketch6.addConstraint(Sketcher.Constraint("DistanceY", 0, 2, 0, 1, 10.0))
sketch6.addConstraint(Sketcher.Constraint("DistanceY", 0, 2, -1, 1, 24.25))
sketch6.setExpression("Constraints[8]", "Params.sketch6_width")
pocket1 = body.newObject("PartDesign::Pocket", "Pocket")
pocket1.Profile = sketch6
pocket1.setExpression("Length", "Params.pocket1_length")

sketch7 = body.newObject("Sketcher::SketchObject", "Sketch006")
sketch7.AttachmentSupport = (doc.getObject("YZ_Plane"), [""])
sketch7.MapMode = "FlatFace"
sketch7.AttachmentOffset = App.Placement(V(0, 0, -0.3135 * 25.4), App.Rotation())
sketch7.addGeometry(Part.LineSegment(V(7.5, -16.25, 0), V(1, -16.25, 0)), False)
sketch7.addGeometry(Part.LineSegment(V(1, -16.25, 0), V(1, -14.25, 0)), False)
sketch7.addGeometry(Part.LineSegment(V(1, -14.25, 0), V(7.5, -14.25, 0)), False)
sketch7.addGeometry(Part.LineSegment(V(7.5, -14.25, 0), V(7.5, -16.25, 0)), False)
sketch7.addConstraint(Sketcher.Constraint("Coincident", 0, 2, 1, 1))
sketch7.addConstraint(Sketcher.Constraint("Coincident", 1, 2, 2, 1))
sketch7.addConstraint(Sketcher.Constraint("Coincident", 2, 2, 3, 1))
sketch7.addConstraint(Sketcher.Constraint("Coincident", 3, 2, 0, 1))
sketch7.addConstraint(Sketcher.Constraint("Horizontal", 0))
sketch7.addConstraint(Sketcher.Constraint("Vertical", 1))
sketch7.addConstraint(Sketcher.Constraint("Horizontal", 2))
sketch7.addConstraint(Sketcher.Constraint("Vertical", 3))
sketch7.addConstraint(Sketcher.Constraint("DistanceX", 0, 2, 0, 1, 6.5))
sketch7.addConstraint(Sketcher.Constraint("DistanceY", 1, 1, 1, 2, 2.0))
sketch7.addConstraint(Sketcher.Constraint("DistanceX", -1, 1, 0, 2, 1.0))
sketch7.addConstraint(Sketcher.Constraint("DistanceY", 0, 2, -1, 1, 16.25))
pocket2 = body.newObject("PartDesign::Pocket", "Pocket001")
pocket2.Profile = sketch7
pocket2.setExpression("Length", "Params.pocket2_length")
pocket2.Reversed = True
doc.recompute()

fillet = body.newObject("PartDesign::Fillet", "Fillet")
fillet.Base = (pocket2, edges_at(pocket2, [(-6.756, 1.25, -4.877)]))
fillet.setExpression("Radius", "Params.fillet_radius")
doc.recompute()

fillet2 = body.newObject("PartDesign::Fillet", "Fillet001")
fillet2.Base = (fillet, edges_at(fillet, [(6.756, 1.25, -4.877)]))
fillet2.setExpression("Radius", "Params.fillet2_radius")
doc.recompute()

fillet3 = body.newObject("PartDesign::Fillet", "Fillet002")
fillet3.Base = (fillet2, edges_at(fillet2, [(10.107, 4, -7.016), (-10.107, 4, -7.016)]))
fillet3.setExpression("Radius", "Params.fillet3_radius")
doc.recompute()

fillet4 = body.newObject("PartDesign::Fillet", "Fillet003")
fillet4.Base = (fillet3, edges_at(fillet3, [(-7.963, 5.25, -25.5), (7.963, 5.25, -25.5)]))
fillet4.setExpression("Radius", "Params.fillet4_radius")

doc.recompute()
